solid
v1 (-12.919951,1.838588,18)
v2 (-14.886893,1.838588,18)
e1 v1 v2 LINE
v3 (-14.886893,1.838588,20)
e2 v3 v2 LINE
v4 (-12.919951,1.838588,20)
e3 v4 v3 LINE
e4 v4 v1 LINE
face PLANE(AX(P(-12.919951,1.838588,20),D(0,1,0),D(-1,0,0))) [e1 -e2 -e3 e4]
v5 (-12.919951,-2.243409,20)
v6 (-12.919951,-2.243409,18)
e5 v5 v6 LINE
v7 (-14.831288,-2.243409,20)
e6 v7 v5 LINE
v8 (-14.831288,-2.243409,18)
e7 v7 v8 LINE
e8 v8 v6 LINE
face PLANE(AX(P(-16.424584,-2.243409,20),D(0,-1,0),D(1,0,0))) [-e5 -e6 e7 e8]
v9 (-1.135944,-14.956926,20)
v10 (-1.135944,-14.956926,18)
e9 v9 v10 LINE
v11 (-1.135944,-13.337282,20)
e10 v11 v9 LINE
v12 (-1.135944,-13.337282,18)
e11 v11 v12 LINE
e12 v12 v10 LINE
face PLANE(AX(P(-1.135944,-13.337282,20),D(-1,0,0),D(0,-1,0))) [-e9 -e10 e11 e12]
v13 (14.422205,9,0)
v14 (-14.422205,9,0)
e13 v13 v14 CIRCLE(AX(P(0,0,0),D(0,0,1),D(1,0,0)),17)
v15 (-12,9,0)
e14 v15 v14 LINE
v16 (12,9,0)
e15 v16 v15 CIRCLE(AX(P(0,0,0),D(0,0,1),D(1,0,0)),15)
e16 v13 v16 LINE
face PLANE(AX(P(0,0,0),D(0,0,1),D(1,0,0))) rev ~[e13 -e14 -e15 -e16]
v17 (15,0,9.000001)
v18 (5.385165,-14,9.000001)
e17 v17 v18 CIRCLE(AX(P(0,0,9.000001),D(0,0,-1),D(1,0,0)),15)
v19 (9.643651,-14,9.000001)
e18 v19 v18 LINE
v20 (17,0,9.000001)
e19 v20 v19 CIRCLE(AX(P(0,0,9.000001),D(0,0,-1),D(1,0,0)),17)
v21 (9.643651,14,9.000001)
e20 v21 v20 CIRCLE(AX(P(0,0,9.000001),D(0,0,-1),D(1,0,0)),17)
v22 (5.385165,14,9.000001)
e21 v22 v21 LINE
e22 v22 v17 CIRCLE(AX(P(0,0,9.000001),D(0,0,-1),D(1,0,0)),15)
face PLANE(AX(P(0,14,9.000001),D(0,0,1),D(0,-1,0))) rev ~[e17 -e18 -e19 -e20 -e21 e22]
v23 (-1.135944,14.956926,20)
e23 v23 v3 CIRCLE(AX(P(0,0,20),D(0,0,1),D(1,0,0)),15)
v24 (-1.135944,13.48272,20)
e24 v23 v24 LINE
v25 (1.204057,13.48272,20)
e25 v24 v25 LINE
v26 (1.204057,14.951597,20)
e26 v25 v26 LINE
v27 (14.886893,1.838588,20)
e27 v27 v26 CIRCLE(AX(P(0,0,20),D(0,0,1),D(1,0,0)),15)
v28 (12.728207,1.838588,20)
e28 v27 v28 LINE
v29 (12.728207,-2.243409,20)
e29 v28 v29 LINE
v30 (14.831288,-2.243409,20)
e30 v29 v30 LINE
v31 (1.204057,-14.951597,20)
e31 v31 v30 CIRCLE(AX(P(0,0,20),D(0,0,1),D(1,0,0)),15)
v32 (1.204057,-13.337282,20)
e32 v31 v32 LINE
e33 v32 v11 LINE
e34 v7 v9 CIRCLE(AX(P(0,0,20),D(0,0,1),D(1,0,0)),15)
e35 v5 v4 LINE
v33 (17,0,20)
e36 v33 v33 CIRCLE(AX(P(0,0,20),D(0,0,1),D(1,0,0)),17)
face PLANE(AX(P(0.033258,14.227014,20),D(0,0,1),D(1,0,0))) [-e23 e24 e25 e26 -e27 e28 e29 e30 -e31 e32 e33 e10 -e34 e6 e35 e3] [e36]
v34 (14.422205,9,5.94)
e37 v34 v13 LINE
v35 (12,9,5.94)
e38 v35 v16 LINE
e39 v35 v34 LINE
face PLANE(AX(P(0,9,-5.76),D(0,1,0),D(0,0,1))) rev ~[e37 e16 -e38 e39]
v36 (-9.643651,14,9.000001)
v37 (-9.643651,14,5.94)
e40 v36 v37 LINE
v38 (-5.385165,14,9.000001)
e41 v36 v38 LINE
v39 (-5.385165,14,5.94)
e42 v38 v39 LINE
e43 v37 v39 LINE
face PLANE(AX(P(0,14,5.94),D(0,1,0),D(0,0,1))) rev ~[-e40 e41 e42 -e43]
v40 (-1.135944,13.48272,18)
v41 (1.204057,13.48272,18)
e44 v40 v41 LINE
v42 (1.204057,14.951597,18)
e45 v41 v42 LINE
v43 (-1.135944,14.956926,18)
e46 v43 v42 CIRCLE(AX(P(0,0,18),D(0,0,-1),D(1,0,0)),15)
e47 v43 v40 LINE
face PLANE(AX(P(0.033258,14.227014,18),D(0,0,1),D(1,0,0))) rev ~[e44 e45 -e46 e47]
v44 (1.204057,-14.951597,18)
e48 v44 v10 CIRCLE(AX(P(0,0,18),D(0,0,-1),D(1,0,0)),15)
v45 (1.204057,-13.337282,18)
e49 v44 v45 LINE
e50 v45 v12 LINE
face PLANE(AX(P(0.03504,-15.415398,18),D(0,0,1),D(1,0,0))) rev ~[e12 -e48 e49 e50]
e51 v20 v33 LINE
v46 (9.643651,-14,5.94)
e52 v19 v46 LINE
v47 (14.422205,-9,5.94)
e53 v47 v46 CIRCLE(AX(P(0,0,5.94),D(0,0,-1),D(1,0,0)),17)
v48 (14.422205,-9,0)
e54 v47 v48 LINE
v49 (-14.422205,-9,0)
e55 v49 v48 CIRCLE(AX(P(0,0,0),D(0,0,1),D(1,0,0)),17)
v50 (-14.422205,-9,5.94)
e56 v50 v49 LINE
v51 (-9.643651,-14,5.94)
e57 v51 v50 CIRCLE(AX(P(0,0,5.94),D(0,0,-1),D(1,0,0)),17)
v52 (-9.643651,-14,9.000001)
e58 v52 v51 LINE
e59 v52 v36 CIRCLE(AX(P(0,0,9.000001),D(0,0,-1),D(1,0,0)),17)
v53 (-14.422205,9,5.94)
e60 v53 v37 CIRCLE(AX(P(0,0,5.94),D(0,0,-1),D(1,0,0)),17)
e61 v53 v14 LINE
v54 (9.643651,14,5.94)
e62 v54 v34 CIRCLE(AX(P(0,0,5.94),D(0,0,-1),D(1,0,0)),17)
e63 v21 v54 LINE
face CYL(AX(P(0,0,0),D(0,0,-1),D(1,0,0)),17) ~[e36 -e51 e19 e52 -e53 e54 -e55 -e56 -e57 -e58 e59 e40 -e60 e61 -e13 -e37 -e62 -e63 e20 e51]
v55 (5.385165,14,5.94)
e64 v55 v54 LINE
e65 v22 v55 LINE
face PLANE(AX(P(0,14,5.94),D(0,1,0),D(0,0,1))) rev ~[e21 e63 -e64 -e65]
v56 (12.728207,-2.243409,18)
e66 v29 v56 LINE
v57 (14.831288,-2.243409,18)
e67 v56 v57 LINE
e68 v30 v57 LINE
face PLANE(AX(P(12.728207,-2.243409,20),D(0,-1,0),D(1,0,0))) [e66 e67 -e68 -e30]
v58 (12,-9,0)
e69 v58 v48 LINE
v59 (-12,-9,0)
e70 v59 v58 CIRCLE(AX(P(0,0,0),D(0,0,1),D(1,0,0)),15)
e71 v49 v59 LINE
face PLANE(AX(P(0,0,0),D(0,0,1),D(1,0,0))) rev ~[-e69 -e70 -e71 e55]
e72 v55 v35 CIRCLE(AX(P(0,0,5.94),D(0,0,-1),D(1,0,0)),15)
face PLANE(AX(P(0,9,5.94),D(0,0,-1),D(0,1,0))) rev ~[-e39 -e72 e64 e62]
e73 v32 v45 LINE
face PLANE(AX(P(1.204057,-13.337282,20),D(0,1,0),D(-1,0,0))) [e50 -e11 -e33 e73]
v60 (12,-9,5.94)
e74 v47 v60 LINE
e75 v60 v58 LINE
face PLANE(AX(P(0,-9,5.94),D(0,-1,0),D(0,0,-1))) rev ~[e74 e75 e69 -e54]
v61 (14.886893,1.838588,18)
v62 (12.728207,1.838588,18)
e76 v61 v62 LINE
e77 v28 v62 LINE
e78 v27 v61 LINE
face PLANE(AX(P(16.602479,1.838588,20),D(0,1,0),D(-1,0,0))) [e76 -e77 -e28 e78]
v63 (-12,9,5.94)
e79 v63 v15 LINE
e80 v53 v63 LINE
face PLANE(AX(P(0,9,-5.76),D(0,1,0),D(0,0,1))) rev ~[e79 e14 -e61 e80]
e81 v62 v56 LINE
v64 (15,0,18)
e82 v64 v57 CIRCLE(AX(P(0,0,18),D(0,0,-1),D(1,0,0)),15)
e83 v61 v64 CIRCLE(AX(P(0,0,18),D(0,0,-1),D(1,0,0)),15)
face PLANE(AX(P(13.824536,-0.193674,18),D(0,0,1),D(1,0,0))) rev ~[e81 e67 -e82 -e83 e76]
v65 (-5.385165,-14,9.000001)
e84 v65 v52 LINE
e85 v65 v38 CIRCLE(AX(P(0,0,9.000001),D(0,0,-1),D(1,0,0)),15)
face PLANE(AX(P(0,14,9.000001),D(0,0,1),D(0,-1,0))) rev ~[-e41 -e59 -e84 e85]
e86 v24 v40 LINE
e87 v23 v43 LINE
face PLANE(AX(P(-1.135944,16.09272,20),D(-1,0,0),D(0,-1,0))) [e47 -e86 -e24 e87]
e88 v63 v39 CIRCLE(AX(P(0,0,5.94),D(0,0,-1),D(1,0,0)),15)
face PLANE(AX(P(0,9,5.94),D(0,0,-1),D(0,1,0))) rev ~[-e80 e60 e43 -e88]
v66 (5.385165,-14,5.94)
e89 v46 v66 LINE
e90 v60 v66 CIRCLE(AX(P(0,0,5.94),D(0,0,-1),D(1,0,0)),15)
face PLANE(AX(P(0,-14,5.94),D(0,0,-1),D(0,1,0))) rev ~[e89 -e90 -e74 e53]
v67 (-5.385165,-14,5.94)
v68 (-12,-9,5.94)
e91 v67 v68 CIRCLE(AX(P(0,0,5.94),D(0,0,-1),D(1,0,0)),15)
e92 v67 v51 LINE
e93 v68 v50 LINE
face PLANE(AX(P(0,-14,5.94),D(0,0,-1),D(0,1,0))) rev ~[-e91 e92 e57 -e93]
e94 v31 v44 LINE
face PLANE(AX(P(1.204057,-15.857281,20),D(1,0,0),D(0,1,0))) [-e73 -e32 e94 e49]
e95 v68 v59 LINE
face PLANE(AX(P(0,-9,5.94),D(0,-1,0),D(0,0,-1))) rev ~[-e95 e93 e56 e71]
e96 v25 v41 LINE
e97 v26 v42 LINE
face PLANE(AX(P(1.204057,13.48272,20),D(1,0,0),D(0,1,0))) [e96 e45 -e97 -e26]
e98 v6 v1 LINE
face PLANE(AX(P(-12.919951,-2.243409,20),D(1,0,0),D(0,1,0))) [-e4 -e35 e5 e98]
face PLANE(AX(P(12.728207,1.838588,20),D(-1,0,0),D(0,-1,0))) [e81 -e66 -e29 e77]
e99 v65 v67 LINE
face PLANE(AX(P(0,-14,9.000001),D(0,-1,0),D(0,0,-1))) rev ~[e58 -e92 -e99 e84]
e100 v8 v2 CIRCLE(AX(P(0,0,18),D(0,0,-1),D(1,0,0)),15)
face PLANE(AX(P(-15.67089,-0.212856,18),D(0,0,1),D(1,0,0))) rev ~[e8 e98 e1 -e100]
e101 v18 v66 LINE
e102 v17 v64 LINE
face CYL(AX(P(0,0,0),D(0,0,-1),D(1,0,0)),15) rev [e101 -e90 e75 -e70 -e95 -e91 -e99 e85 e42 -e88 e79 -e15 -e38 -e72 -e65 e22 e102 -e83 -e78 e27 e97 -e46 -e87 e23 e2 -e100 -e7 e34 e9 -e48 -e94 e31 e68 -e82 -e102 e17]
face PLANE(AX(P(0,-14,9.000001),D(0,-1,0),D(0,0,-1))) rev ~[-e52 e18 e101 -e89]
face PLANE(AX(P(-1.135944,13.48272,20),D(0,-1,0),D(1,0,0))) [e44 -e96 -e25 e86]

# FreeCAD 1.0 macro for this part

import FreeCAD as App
import Part
import Sketcher
Q = App.Units.Quantity

doc = App.newDocument("Part")
body = doc.addObject("PartDesign::Body", "Body")

sketch1 = body.newObject("Sketcher::SketchObject", "Sketch")
sketch1.AttachmentSupport = (doc.getObject("XY_Plane"), [""])
sketch1.MapMode = "FlatFace"
sketch1.addGeometry([
    Part.Circle(App.Vector(0, 0, 0), App.Vector(0, 0, 1), 17),
    Part.Circle(App.Vector(0, 0, 0), App.Vector(0, 0, 1), 15),
], False)
sketch1.addConstraint([
    Sketcher.Constraint("Coincident", 0, 3, -1, 1),
    Sketcher.Constraint("Coincident", 1, 3, -1, 1),
    Sketcher.Constraint("Diameter", 0, Q("34 mm")),
    Sketcher.Constraint("Diameter", 1, Q("30 mm")),
])
pad1 = body.newObject("PartDesign::Pad", "Pad")
pad1.Profile = sketch1
pad1.Length = 20

sketch2 = body.newObject("Sketcher::SketchObject", "Sketch001")
sketch2.AttachmentSupport = (doc.getObject("YZ_Plane"), [""])
sketch2.MapMode = "FlatFace"
sketch2.addGeometry([
    Part.LineSegment(App.Vector(-9, 5.94, 0), App.Vector(-9, -6.120001, 0)),
    Part.LineSegment(App.Vector(-9, -6.120001, 0), App.Vector(9, -5.76, 0)),
    Part.LineSegment(App.Vector(9, -5.76, 0), App.Vector(9, 5.94, 0)),
    Part.LineSegment(App.Vector(9, 5.94, 0), App.Vector(14, 5.94, 0)),
    Part.LineSegment(App.Vector(14, 5.94, 0), App.Vector(14, 9.000001, 0)),
    Part.LineSegment(App.Vector(14, 9.000001, 0), App.Vector(-14, 9.000001, 0)),
    Part.LineSegment(App.Vector(-14, 9.000001, 0), App.Vector(-14, 5.94, 0)),
    Part.LineSegment(App.Vector(-14, 5.94, 0), App.Vector(-9, 5.94, 0)),
], False)
sketch2.addConstraint([
    Sketcher.Constraint("Coincident", 0, 2, 1, 1),
    Sketcher.Constraint("Coincident", 1, 2, 2, 1),
    Sketcher.Constraint("Coincident", 2, 2, 3, 1),
    Sketcher.Constraint("Coincident", 3, 2, 4, 1),
    Sketcher.Constraint("Coincident", 4, 2, 5, 1),
    Sketcher.Constraint("Coincident", 5, 2, 6, 1),
    Sketcher.Constraint("Coincident", 6, 2, 7, 1),
    Sketcher.Constraint("Coincident", 7, 2, 0, 1),
    Sketcher.Constraint("Vertical", 0),
    Sketcher.Constraint("Vertical", 2),
    Sketcher.Constraint("Horizontal", 3),
    Sketcher.Constraint("Vertical", 4),
    Sketcher.Constraint("Horizontal", 5),
    Sketcher.Constraint("Vertical", 6),
    Sketcher.Constraint("Horizontal", 7),
    Sketcher.Constraint("Symmetric", 3, 2, 6, 2, -2),
    Sketcher.Constraint("Equal", 3, 7),
    Sketcher.Constraint("DistanceX", 3, 1, 3, 2, Q("5 mm")),
    Sketcher.Constraint("DistanceX", 5, 2, 5, 1, Q("28 mm")),
    Sketcher.Constraint("DistanceY", 2, 1, 2, 2, Q("11.7 mm")),
    Sketcher.Constraint("DistanceY", -1, 1, 4, 2, Q("9.000001 mm")),
    Sketcher.Constraint("DistanceY", 0, 2, 0, 1, Q("12.060001 mm")),
    Sketcher.Constraint("DistanceY", 4, 1, 4, 2, Q("3.060001 mm")),
])
pocket1 = body.newObject("PartDesign::Pocket", "Pocket")
pocket1.Profile = sketch2
pocket1.Length = 50
pocket1.Midplane = True

sketch3 = body.newObject("Sketcher::SketchObject", "Sketch002")
sketch3.AttachmentSupport = (doc.getObject("XY_Plane"), [""])
sketch3.MapMode = "FlatFace"
sketch3.AttachmentOffset = App.Placement(App.Vector(0, 0, 20), App.Rotation())
sketch3.addGeometry([
    Part.LineSegment(App.Vector(-16.424584, 1.838588, 0), App.Vector(-16.424584, -2.243409, 0)),
    Part.LineSegment(App.Vector(-16.424584, -2.243409, 0), App.Vector(-12.919951, -2.243409, 0)),
    Part.LineSegment(App.Vector(-12.919951, -2.243409, 0), App.Vector(-12.919951, 1.838588, 0)),
    Part.LineSegment(App.Vector(-12.919951, 1.838588, 0), App.Vector(-16.424584, 1.838588, 0)),
    Part.LineSegment(App.Vector(12.728207, 1.838588, 0), App.Vector(12.728207, -2.243409, 0)),
    Part.LineSegment(App.Vector(12.728207, -2.243409, 0), App.Vector(16.602479, -2.243409, 0)),
    Part.LineSegment(App.Vector(16.602479, -2.243409, 0), App.Vector(16.602479, 1.838588, 0)),
    Part.LineSegment(App.Vector(16.602479, 1.838588, 0), App.Vector(12.728207, 1.838588, 0)),
], False)
sketch3.addConstraint([
    Sketcher.Constraint("Coincident", 0, 2, 1, 1),
    Sketcher.Constraint("Coincident", 1, 2, 2, 1),
    Sketcher.Constraint("Coincident", 2, 2, 3, 1),
    Sketcher.Constraint("Coincident", 3, 2, 0, 1),
    Sketcher.Constraint("Coincident", 4, 2, 5, 1),
    Sketcher.Constraint("Coincident", 5, 2, 6, 1),
    Sketcher.Constraint("Coincident", 6, 2, 7, 1),
    Sketcher.Constraint("Coincident", 7, 2, 4, 1),
    Sketcher.Constraint("Vertical", 0),
    Sketcher.Constraint("Horizontal", 1),
    Sketcher.Constraint("Vertical", 2),
    Sketcher.Constraint("Horizontal", 3),
    Sketcher.Constraint("Vertical", 4),
    Sketcher.Constraint("Horizontal", 5),
    Sketcher.Constraint("Vertical", 6),
    Sketcher.Constraint("Horizontal", 7),
    Sketcher.Constraint("Horizontal", 1, 2, 4, 2),
    Sketcher.Constraint("Horizontal", 3, 2, 6, 2),
    Sketcher.Constraint("DistanceX", 5, 1, 5, 2, Q("3.874272 mm")),
    Sketcher.Constraint("DistanceX", 1, 1, 1, 2, Q("3.504633 mm")),
    Sketcher.Constraint("DistanceY", 0, 2, 0, 1, Q("4.081997 mm")),
    Sketcher.Constraint("DistanceY", 0, 2, -1, 1, Q("2.243409 mm")),
    Sketcher.Constraint("DistanceX", 1, 2, -1, 1, Q("12.919951 mm")),
    Sketcher.Constraint("DistanceX", -1, 1, 5, 2, Q("16.602479 mm")),
])
pad2 = body.newObject("PartDesign::Pad", "Pad001")
pad2.Profile = sketch3
pad2.Length = 2
pad2.Reversed = True

sketch4 = body.newObject("Sketcher::SketchObject", "Sketch003")
sketch4.AttachmentSupport = (doc.getObject("XY_Plane"), [""])
sketch4.MapMode = "FlatFace"
sketch4.AttachmentOffset = App.Placement(App.Vector(0, 0, 20), App.Rotation())
sketch4.addGeometry([
    Part.LineSegment(App.Vector(-1.135944, 13.48272, 0), App.Vector(1.204057, 13.48272, 0)),
    Part.LineSegment(App.Vector(1.204057, 13.48272, 0), App.Vector(1.204057, 16.09272, 0)),
    Part.LineSegment(App.Vector(1.204057, 16.09272, 0), App.Vector(-1.135944, 16.09272, 0)),
    Part.LineSegment(App.Vector(-1.135944, 16.09272, 0), App.Vector(-1.135944, 13.48272, 0)),
    Part.LineSegment(App.Vector(-1.135944, -15.857281, 0), App.Vector(1.204057, -15.857281, 0)),
    Part.LineSegment(App.Vector(1.204057, -15.857281, 0), App.Vector(1.204057, -13.337282, 0)),
    Part.LineSegment(App.Vector(1.204057, -13.337282, 0), App.Vector(-1.135944, -13.337282, 0)),
    Part.LineSegment(App.Vector(-1.135944, -13.337282, 0), App.Vector(-1.135944, -15.857281, 0)),
], False)
sketch4.addConstraint([
    Sketcher.Constraint("Coincident", 0, 2, 1, 1),
    Sketcher.Constraint("Coincident", 1, 2, 2, 1),
    Sketcher.Constraint("Coincident", 2, 2, 3, 1),
    Sketcher.Constraint("Coincident", 3, 2, 0, 1),
    Sketcher.Constraint("Coincident", 4, 2, 5, 1),
    Sketcher.Constraint("Coincident", 5, 2, 6, 1),
    Sketcher.Constraint("Coincident", 6, 2, 7, 1),
    Sketcher.Constraint("Coincident", 7, 2, 4, 1),
    Sketcher.Constraint("Horizontal", 0),
    Sketcher.Constraint("Vertical", 1),
    Sketcher.Constraint("Horizontal", 2),
    Sketcher.Constraint("Vertical", 3),
    Sketcher.Constraint("Horizontal", 4),
    Sketcher.Constraint("Vertical", 5),
    Sketcher.Constraint("Horizontal", 6),
    Sketcher.Constraint("Vertical", 7),
    Sketcher.Constraint("Vertical", 1, 2, 4, 2),
    Sketcher.Constraint("Vertical", 3, 2, 6, 2),
    Sketcher.Constraint("DistanceX", 0, 1, 0, 2, Q("2.340001 mm")),
    Sketcher.Constraint("DistanceY", 1, 1, 1, 2, Q("2.61 mm")),
    Sketcher.Constraint("DistanceY", 5, 1, 5, 2, Q("2.519999 mm")),
    Sketcher.Constraint("DistanceY", 4, 2, 0, 2, Q("29.340001 mm")),
    Sketcher.Constraint("DistanceY", -1, 1, 0, 2, Q("13.48272 mm")),
    Sketcher.Constraint("DistanceX", -1, 1, 0, 2, Q("1.204057 mm")),
])
pad3 = body.newObject("PartDesign::Pad", "Pad002")
pad3.Profile = sketch4
pad3.Length = 2
pad3.Reversed = True

doc.recompute()
